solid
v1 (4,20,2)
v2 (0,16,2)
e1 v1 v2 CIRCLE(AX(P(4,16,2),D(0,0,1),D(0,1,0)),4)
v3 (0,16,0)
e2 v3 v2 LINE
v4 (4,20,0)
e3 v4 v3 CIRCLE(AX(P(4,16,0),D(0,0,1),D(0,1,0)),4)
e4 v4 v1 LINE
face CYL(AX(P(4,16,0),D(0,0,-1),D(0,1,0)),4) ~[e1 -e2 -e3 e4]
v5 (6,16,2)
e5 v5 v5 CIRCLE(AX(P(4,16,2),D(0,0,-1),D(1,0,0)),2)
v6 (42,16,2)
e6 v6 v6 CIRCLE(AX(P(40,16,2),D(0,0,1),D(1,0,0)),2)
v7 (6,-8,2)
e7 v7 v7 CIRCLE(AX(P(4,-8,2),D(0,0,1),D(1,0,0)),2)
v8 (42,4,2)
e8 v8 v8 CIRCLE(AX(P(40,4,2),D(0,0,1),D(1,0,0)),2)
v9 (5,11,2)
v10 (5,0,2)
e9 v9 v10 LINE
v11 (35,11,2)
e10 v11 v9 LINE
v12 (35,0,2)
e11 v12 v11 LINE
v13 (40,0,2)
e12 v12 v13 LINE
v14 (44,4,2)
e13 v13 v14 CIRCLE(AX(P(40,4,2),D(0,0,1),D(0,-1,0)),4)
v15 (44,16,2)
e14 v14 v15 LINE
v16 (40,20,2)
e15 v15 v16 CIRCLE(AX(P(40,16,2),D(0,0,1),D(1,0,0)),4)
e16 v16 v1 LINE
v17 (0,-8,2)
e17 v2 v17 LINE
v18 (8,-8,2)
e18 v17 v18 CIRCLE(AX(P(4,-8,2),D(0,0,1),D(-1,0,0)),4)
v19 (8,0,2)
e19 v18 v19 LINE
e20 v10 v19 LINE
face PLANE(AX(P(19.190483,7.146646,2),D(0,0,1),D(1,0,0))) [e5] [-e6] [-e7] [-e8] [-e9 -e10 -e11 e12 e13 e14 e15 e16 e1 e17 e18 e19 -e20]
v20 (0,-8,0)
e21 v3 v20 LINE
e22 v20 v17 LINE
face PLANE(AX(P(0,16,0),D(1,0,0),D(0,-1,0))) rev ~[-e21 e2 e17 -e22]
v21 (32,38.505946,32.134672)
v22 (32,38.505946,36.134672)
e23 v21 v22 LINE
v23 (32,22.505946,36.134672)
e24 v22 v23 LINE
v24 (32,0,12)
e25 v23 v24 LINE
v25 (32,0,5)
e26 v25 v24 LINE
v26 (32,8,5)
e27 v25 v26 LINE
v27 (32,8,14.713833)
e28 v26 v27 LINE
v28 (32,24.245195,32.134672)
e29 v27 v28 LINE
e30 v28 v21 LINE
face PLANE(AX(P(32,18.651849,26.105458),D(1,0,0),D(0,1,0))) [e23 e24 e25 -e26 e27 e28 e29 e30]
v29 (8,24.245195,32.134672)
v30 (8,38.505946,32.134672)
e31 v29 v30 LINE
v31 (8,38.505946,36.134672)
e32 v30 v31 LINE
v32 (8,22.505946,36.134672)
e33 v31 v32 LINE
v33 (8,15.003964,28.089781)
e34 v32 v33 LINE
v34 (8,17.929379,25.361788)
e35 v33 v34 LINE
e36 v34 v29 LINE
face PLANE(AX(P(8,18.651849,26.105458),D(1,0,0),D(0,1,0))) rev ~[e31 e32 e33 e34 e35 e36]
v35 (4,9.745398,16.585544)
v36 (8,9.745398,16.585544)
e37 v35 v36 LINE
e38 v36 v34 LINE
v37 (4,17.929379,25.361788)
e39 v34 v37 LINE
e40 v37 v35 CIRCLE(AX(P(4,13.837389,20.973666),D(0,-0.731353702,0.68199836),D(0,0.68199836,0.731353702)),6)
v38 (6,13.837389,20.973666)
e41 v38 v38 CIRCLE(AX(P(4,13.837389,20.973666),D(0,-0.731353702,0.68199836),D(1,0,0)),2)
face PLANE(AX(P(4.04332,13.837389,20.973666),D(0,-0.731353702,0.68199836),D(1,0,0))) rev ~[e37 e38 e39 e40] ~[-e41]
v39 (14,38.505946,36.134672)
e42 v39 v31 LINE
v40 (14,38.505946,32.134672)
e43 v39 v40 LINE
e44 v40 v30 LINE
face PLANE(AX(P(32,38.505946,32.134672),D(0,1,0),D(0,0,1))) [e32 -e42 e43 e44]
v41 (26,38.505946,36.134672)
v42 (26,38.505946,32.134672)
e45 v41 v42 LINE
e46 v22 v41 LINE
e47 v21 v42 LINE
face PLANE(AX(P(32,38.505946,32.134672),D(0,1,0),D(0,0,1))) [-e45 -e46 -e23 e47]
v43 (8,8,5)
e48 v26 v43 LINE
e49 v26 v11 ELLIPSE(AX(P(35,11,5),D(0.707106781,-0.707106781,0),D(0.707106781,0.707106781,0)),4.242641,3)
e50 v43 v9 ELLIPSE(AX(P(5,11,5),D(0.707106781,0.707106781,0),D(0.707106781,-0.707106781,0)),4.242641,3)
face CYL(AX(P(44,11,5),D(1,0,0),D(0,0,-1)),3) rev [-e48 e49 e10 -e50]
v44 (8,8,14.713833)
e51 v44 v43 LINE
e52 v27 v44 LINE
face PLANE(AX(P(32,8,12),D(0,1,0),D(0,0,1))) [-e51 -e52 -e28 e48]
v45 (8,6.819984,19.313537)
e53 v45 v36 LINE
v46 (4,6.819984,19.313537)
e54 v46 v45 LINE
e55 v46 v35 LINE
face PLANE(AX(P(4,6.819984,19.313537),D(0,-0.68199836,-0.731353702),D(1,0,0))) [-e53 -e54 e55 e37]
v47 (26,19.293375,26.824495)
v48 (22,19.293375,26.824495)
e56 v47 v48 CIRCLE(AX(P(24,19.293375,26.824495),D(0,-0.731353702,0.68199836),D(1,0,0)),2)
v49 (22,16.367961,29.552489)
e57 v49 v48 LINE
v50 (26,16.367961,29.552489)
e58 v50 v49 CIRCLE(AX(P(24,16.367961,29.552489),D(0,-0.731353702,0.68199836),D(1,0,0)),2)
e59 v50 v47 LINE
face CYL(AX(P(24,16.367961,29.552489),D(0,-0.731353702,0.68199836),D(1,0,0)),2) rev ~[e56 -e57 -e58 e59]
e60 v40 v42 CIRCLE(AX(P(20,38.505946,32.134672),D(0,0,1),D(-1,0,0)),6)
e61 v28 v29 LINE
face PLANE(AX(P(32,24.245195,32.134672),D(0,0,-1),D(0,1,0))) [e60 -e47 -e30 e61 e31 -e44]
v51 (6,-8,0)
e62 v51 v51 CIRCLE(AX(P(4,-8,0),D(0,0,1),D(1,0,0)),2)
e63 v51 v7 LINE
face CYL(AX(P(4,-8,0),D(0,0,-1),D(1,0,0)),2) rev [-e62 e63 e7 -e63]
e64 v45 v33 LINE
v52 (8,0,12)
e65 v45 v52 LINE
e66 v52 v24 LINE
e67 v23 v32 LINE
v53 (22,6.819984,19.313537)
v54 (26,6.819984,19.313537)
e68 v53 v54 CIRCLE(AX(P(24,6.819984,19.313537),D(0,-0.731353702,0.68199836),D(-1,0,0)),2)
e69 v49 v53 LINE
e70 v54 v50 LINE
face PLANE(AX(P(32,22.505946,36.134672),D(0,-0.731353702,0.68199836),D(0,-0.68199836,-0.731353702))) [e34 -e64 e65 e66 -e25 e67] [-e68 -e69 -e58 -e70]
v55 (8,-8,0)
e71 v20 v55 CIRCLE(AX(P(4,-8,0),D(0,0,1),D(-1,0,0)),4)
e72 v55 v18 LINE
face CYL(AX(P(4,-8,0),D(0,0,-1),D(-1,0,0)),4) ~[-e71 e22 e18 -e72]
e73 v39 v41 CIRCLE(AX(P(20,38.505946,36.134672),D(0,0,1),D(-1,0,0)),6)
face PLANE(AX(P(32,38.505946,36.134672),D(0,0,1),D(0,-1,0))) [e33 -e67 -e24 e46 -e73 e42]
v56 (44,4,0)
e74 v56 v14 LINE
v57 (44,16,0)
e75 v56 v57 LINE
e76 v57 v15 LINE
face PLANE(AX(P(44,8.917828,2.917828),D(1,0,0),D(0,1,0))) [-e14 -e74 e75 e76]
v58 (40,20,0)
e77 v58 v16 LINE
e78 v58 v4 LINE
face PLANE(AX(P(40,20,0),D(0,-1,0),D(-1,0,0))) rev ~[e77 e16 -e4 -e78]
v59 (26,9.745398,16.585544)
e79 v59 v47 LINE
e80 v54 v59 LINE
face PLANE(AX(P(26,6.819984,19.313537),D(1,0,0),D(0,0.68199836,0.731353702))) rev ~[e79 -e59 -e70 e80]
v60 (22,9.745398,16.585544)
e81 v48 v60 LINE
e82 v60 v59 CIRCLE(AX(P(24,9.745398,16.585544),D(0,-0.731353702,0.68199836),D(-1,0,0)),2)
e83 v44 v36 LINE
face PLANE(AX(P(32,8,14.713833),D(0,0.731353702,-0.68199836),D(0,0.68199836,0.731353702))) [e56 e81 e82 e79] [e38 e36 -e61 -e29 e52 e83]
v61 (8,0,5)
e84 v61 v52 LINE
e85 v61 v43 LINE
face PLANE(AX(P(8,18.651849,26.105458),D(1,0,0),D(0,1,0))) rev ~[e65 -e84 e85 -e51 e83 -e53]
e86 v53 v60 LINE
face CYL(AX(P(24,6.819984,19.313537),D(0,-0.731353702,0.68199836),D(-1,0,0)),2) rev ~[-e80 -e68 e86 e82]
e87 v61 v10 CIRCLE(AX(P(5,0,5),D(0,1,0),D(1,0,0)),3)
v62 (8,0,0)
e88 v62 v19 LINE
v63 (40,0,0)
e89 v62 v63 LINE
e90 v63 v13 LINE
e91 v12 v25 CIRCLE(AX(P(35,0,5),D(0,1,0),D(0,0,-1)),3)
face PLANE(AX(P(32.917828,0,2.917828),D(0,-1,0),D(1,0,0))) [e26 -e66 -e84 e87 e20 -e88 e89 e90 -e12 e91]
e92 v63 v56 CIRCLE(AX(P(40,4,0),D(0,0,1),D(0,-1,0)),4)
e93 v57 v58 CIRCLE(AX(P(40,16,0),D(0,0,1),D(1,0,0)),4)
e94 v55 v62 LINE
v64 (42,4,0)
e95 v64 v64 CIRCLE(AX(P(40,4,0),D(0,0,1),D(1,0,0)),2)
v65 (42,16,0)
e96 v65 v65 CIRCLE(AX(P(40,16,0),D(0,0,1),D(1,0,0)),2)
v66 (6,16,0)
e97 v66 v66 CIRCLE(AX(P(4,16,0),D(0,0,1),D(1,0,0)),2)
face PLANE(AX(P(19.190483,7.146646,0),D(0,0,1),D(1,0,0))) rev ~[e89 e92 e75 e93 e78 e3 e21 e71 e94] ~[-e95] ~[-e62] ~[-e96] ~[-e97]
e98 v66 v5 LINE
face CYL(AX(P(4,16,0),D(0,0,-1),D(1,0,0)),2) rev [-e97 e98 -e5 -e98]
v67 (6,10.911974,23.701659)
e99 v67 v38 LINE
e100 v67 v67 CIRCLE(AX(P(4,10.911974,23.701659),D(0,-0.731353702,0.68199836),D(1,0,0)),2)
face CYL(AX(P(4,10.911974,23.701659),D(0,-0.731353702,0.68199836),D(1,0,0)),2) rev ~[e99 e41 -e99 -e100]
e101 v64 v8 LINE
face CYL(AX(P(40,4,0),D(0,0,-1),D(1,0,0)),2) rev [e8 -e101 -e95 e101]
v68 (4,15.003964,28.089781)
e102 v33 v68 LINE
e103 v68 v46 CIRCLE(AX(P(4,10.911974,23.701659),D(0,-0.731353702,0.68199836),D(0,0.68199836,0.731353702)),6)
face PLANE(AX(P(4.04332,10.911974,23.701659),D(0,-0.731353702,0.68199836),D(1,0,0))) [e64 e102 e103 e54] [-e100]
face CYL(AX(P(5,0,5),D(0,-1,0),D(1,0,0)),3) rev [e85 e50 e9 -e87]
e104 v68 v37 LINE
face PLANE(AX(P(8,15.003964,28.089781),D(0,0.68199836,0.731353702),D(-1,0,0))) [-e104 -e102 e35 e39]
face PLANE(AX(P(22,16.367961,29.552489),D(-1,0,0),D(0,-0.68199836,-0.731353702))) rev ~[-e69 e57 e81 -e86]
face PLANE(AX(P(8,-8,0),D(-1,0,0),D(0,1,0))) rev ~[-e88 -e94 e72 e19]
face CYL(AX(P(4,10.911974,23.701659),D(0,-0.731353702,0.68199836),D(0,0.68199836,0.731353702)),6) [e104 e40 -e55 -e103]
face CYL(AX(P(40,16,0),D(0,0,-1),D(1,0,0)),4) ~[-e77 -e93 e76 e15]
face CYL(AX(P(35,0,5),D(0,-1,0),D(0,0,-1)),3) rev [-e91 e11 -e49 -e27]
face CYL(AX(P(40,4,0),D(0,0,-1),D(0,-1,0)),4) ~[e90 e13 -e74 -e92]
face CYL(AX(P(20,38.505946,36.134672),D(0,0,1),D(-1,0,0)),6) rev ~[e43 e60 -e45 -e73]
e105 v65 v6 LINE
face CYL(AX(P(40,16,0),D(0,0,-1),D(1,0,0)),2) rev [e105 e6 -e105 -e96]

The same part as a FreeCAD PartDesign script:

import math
import FreeCAD as App
import Part
import Sketcher
from FreeCAD import Vector
Q = App.Units.Quantity

doc = App.newDocument("Part")
body = doc.addObject("PartDesign::Body", "Body")

# Sketch on XY plane
sketch1 = body.newObject("Sketcher::SketchObject", "Sketch")
sketch1.AttachmentSupport = (doc.getObject("XY_Plane"), [""])
sketch1.MapMode = "FlatFace"
sketch1.addGeometry([
    Part.LineSegment(Vector(40, 20, 0), Vector(4, 20, 0)),  # 0
    Part.ArcOfCircle(Part.Circle(Vector(4, 16, 0), Vector(0, 0, 1), 4), math.radians(90), math.radians(180)),  # 1
    Part.LineSegment(Vector(0, 16, 0), Vector(0, -8, 0)),  # 2
    Part.ArcOfCircle(Part.Circle(Vector(4, -8, 0), Vector(0, 0, 1), 4), math.radians(180), math.radians(360)),  # 3
    Part.LineSegment(Vector(8, -8, 0), Vector(8, 0, 0)),  # 4
    Part.LineSegment(Vector(8, 0, 0), Vector(40, 0, 0)),  # 5
    Part.ArcOfCircle(Part.Circle(Vector(40, 4, 0), Vector(0, 0, 1), 4), math.radians(-90), math.radians(0)),  # 6
    Part.LineSegment(Vector(44, 4, 0), Vector(44, 16, 0)),  # 7
    Part.ArcOfCircle(Part.Circle(Vector(40, 16, 0), Vector(0, 0, 1), 4), math.radians(0), math.radians(90)),  # 8
    Part.Circle(Vector(4, -8, 0), Vector(0, 0, 1), 2),  # 9
    Part.Circle(Vector(4, 16, 0), Vector(0, 0, 1), 2),  # 10
    Part.Circle(Vector(40, 4, 0), Vector(0, 0, 1), 2),  # 11
    Part.Circle(Vector(40, 16, 0), Vector(0, 0, 1), 2),  # 12
], False)
sketch1.addConstraint([
    Sketcher.Constraint("Tangent", 0, 2, 1, 1),
    Sketcher.Constraint("Tangent", 1, 2, 2, 1),
    Sketcher.Constraint("Tangent", 2, 2, 3, 1),
    Sketcher.Constraint("Tangent", 3, 2, 4, 1),
    Sketcher.Constraint("Coincident", 4, 2, 5, 1),
    Sketcher.Constraint("Tangent", 5, 2, 6, 1),
    Sketcher.Constraint("Tangent", 6, 2, 7, 1),
    Sketcher.Constraint("Tangent", 7, 2, 8, 1),
    Sketcher.Constraint("Tangent", 8, 2, 0, 1),
    Sketcher.Constraint("Horizontal", 0),
    Sketcher.Constraint("Vertical", 2),
    Sketcher.Constraint("Vertical", 4),
    Sketcher.Constraint("Horizontal", 5),
    Sketcher.Constraint("Vertical", 7),
    Sketcher.Constraint("Coincident", 9, 3, 3, 3),
    Sketcher.Constraint("Coincident", 10, 3, 1, 3),
    Sketcher.Constraint("Coincident", 11, 3, 6, 3),
    Sketcher.Constraint("Coincident", 12, 3, 8, 3),
    Sketcher.Constraint("Equal", 1, 3),
    Sketcher.Constraint("Equal", 3, 6),
    Sketcher.Constraint("Equal", 6, 8),
    Sketcher.Constraint("Equal", 9, 10),
    Sketcher.Constraint("Equal", 10, 11),
    Sketcher.Constraint("Equal", 11, 12),
    Sketcher.Constraint("PointOnObject", 1, 2, -2),
    Sketcher.Constraint("PointOnObject", 4, 2, -1),
    Sketcher.Constraint("Diameter", 9, 4.0),
    Sketcher.Constraint("Radius", 1, 4.0),
    Sketcher.Constraint("DistanceX", 0, 2, 0, 1, 36.0),
    Sketcher.Constraint("DistanceY", 2, 2, 2, 1, 24.0),
    Sketcher.Constraint("DistanceY", 4, 1, 4, 2, 8.0),
])
pad1 = body.newObject("PartDesign::Pad", "Pad")
pad1.Profile = sketch1
pad1.Length = 2

# Sketch on XY plane
sketch2 = body.newObject("Sketcher::SketchObject", "Sketch001")
sketch2.AttachmentSupport = (doc.getObject("XY_Plane"), [""])
sketch2.MapMode = "FlatFace"
sketch2.AttachmentOffset = App.Placement(Vector(0, 0, 2), App.Rotation())
sketch2.addGeometry([
    Part.LineSegment(Vector(8, 8, 0), Vector(8, 0, 0)),
    Part.LineSegment(Vector(8, 0, 0), Vector(32, 0, 0)),
    Part.LineSegment(Vector(32, 0, 0), Vector(32, 8, 0)),
    Part.LineSegment(Vector(32, 8, 0), Vector(8, 8, 0)),
], False)
sketch2.addConstraint([
    Sketcher.Constraint("Coincident", 0, 2, 1, 1),
    Sketcher.Constraint("Coincident", 1, 2, 2, 1),
    Sketcher.Constraint("Coincident", 2, 2, 3, 1),
    Sketcher.Constraint("Coincident", 3, 2, 0, 1),
    Sketcher.Constraint("Vertical", 0),
    Sketcher.Constraint("Horizontal", 1),
    Sketcher.Constraint("Vertical", 2),
    Sketcher.Constraint("Horizontal", 3),
    Sketcher.Constraint("PointOnObject", 0, 2, -1),
    Sketcher.Constraint("DistanceX", 1, 1, 1, 2, 24.0),
    Sketcher.Constraint("DistanceY", 0, 2, 0, 1, 8.0),
    Sketcher.Constraint("DistanceX", -1, 1, 0, 2, 8.0),
])
pad2 = body.newObject("PartDesign::Pad", "Pad001")
pad2.Profile = sketch2
pad2.Length = 10

# Sketch on XZ plane
sketch3 = body.newObject("Sketcher::SketchObject", "Sketch002")
sketch3.AttachmentSupport = (doc.getObject("XZ_Plane"), [""])
sketch3.MapMode = "FlatFace"
sketch3.addGeometry([
    Part.LineSegment(Vector(32, 2, 0), Vector(35, 2, 0)),  # 0
    Part.ArcOfCircle(Part.Circle(Vector(35, 5, 0), Vector(0, 0, 1), 3), math.radians(180), math.radians(270)),  # 1
    Part.LineSegment(Vector(32, 5, 0), Vector(32, 2, 0)),  # 2
    Part.LineSegment(Vector(5, 2, 0), Vector(8, 2, 0)),  # 3
    Part.LineSegment(Vector(8, 2, 0), Vector(8, 5, 0)),  # 4
    Part.ArcOfCircle(Part.Circle(Vector(5, 5, 0), Vector(0, 0, 1), 3), math.radians(-90), math.radians(0)),  # 5
], False)
sketch3.addConstraint([
    Sketcher.Constraint("Tangent", 0, 2, 1, 2),
    Sketcher.Constraint("Tangent", 1, 1, 2, 1),
    Sketcher.Constraint("Coincident", 2, 2, 0, 1),
    Sketcher.Constraint("Coincident", 3, 2, 4, 1),
    Sketcher.Constraint("Tangent", 4, 2, 5, 2),
    Sketcher.Constraint("Tangent", 5, 1, 3, 1),
    Sketcher.Constraint("Horizontal", 0),
    Sketcher.Constraint("Vertical", 2),
    Sketcher.Constraint("Horizontal", 3),
    Sketcher.Constraint("Vertical", 4),
    Sketcher.Constraint("Equal", 1, 5),
    Sketcher.Constraint("Horizontal", 1, 3, 5, 3),
    Sketcher.Constraint("Radius", 1, 3.0),
    Sketcher.Constraint("DistanceX", -1, 1, 1, 3, 35.0),
    Sketcher.Constraint("DistanceY", -1, 1, 1, 3, 5.0),
    Sketcher.Constraint("DistanceX", -1, 1, 5, 3, 5.0),
])
pad3 = body.newObject("PartDesign::Pad", "Pad002")
pad3.Profile = sketch3
pad3.Length = 8
pad3.Reversed = True

# Sketch on YZ plane
sketch4 = body.newObject("Sketcher::SketchObject", "Sketch003")
sketch4.AttachmentSupport = (doc.getObject("YZ_Plane"), [""])
sketch4.MapMode = "FlatFace"
sketch4.AttachmentOffset = App.Placement(Vector(0, 0, 44), App.Rotation())
sketch4.addGeometry([
    Part.ArcOfCircle(Part.Circle(Vector(11, 5, 0), Vector(0, 0, 1), 3), math.radians(180), math.radians(270)),
    Part.LineSegment(Vector(8, 5, 0), Vector(8, 2, 0)),
    Part.LineSegment(Vector(8, 2, 0), Vector(11, 2, 0)),
], False)
sketch4.addConstraint([
    Sketcher.Constraint("Tangent", 0, 1, 1, 1),
    Sketcher.Constraint("Coincident", 1, 2, 2, 1),
    Sketcher.Constraint("Tangent", 2, 2, 0, 2),
    Sketcher.Constraint("Vertical", 1),
    Sketcher.Constraint("Horizontal", 2),
    Sketcher.Constraint("Radius", 0, 3.0),
    Sketcher.Constraint("DistanceX", -1, 1, 0, 3, 11.0),
    Sketcher.Constraint("DistanceY", -1, 1, 0, 3, 5.0),
])
pad4 = body.newObject("PartDesign::Pad", "Pad003")
pad4.Profile = sketch4
pad4.Length = 40
pad4.Reversed = True

# Sketch on XZ plane
sketch5 = body.newObject("Sketcher::SketchObject", "Sketch004")
sketch5.AttachmentSupport = (doc.getObject("XZ_Plane"), [""])
sketch5.MapMode = "FlatFace"
sketch5.addGeometry([
    Part.ArcOfCircle(Part.Circle(Vector(5, 5, 0), Vector(0, 0, 1), 3), math.radians(-90), math.radians(0)),  # 0
    Part.LineSegment(Vector(8, 5, 0), Vector(3.854018, 5, 0)),  # 1
    Part.LineSegment(Vector(3.854018, 5, 0), Vector(3.854018, 2, 0)),  # 2
    Part.LineSegment(Vector(3.854018, 2, 0), Vector(5, 2, 0)),  # 3
    Part.LineSegment(Vector(44, 5, 0), Vector(32, 5, 0)),  # 4
    Part.ArcOfCircle(Part.Circle(Vector(35, 5, 0), Vector(0, 0, 1), 3), math.radians(180), math.radians(270)),  # 5
    Part.LineSegment(Vector(35, 2, 0), Vector(44, 2, 0)),  # 6
    Part.LineSegment(Vector(44, 2, 0), Vector(44, 5, 0)),  # 7
], False)
sketch5.addConstraint([
    Sketcher.Constraint("Coincident", 0, 2, 1, 1),
    Sketcher.Constraint("Coincident", 1, 2, 2, 1),
    Sketcher.Constraint("Coincident", 2, 2, 3, 1),
    Sketcher.Constraint("Tangent", 3, 2, 0, 1),
    Sketcher.Constraint("Coincident", 4, 2, 5, 1),
    Sketcher.Constraint("Tangent", 5, 2, 6, 1),
    Sketcher.Constraint("Coincident", 6, 2, 7, 1),
    Sketcher.Constraint("Coincident", 7, 2, 4, 1),
    Sketcher.Constraint("Horizontal", 1),
    Sketcher.Constraint("Vertical", 2),
    Sketcher.Constraint("Horizontal", 3),
    Sketcher.Constraint("Horizontal", 4),
    Sketcher.Constraint("Horizontal", 6),
    Sketcher.Constraint("Vertical", 7),
    Sketcher.Constraint("Equal", 0, 5),
    Sketcher.Constraint("Horizontal", 0, 3, 5, 3),
    Sketcher.Constraint("Horizontal", 5, 3, 0, 2),
    Sketcher.Constraint("Horizontal", 1, 2, 4, 2),
    Sketcher.Constraint("Radius", 0, 3.0),
    Sketcher.Constraint("DistanceX", 4, 2, 4, 1, 12.0),
    Sketcher.Constraint("DistanceX", -1, 1, 0, 3, 5.0),
    Sketcher.Constraint("DistanceY", -1, 1, 0, 3, 5.0),
    Sketcher.Constraint("DistanceX", -1, 1, 5, 3, 35.0),
    Sketcher.Constraint("DistanceX", 1, 2, 1, 1, 4.145982),
])
pocket1 = body.newObject("PartDesign::Pocket", "Pocket")
pocket1.Profile = sketch5
pocket1.Length = 25

# Sketch on YZ plane
sketch6 = body.newObject("Sketcher::SketchObject", "Sketch005")
sketch6.AttachmentSupport = (doc.getObject("YZ_Plane"), [""])
sketch6.MapMode = "FlatFace"
sketch6.AttachmentOffset = App.Placement(Vector(0, 0, 32), App.Rotation())
sketch6.addGeometry([
    Part.LineSegment(Vector(22.505946, 36.134672, 0), Vector(0, 12, 0)),  # 0
    Part.LineSegment(Vector(0, 12, 0), Vector(8, 12, 0)),  # 1
    Part.LineSegment(Vector(8, 12, 0), Vector(8, 14.713833, 0)),  # 2
    Part.LineSegment(Vector(8, 14.713833, 0), Vector(24.245195, 32.134672, 0)),  # 3
    Part.LineSegment(Vector(24.245195, 32.134672, 0), Vector(38.505946, 32.134672, 0)),  # 4
    Part.LineSegment(Vector(38.505946, 32.134672, 0), Vector(38.505946, 36.134672, 0)),  # 5
    Part.LineSegment(Vector(38.505946, 36.134672, 0), Vector(22.505946, 36.134672, 0)),  # 6
], False)
sketch6.addConstraint([
    Sketcher.Constraint("Coincident", 0, 2, 1, 1),
    Sketcher.Constraint("Coincident", 1, 2, 2, 1),
    Sketcher.Constraint("Coincident", 2, 2, 3, 1),
    Sketcher.Constraint("Coincident", 3, 2, 4, 1),
    Sketcher.Constraint("Coincident", 4, 2, 5, 1),
    Sketcher.Constraint("Coincident", 5, 2, 6, 1),
    Sketcher.Constraint("Coincident", 6, 2, 0, 1),
    Sketcher.Constraint("Horizontal", 1),
    Sketcher.Constraint("Vertical", 2),
    Sketcher.Constraint("Horizontal", 4),
    Sketcher.Constraint("Vertical", 5),
    Sketcher.Constraint("Horizontal", 6),
    Sketcher.Constraint("PointOnObject", 0, 2, -2),
    Sketcher.Constraint("Parallel", 0, 3),
    Sketcher.Constraint("DistanceX", 1, 1, 1, 2, 8.0),
    Sketcher.Constraint("DistanceX", 6, 2, 6, 1, 16.0),
    Sketcher.Constraint("DistanceY", 5, 1, 5, 2, 4.0),
    Sketcher.Constraint("Angle", 0, Q("-133 deg")),
    Sketcher.Constraint("Distance", 0, 33.0),
    Sketcher.Constraint("DistanceY", -1, 1, 0, 2, 12.0),
    Sketcher.Constraint("DistanceX", 4, 1, 4, 2, 14.260751),
])
pad5 = body.newObject("PartDesign::Pad", "Pad004")
pad5.Profile = sketch6
pad5.Length = 24
pad5.Reversed = True

# Sketch on an angled plane
sketch7 = body.newObject("Sketcher::SketchObject", "Sketch006")
sketch7.Placement = App.Placement(Vector(0, -5.985384, 5.581461), App.Rotation(Vector(1, 0, 0), Vector(0, 0.68199836, 0.731353702), Vector(0, -0.731353702, 0.68199836), "ZXY"))
sketch7.addGeometry([
    Part.LineSegment(Vector(26, 18.776244, 0), Vector(26, 32.776244, 0)),
    Part.ArcOfCircle(Part.Circle(Vector(24, 32.776244, 0), Vector(0, 0, 1), 2), math.radians(0), math.radians(180)),
    Part.LineSegment(Vector(22, 32.776244, 0), Vector(22, 18.776244, 0)),
    Part.ArcOfCircle(Part.Circle(Vector(24, 18.776244, 0), Vector(0, 0, 1), 2), math.radians(180), math.radians(360)),
], False)
sketch7.addConstraint([
    Sketcher.Constraint("Tangent", 0, 2, 1, 1),
    Sketcher.Constraint("Tangent", 1, 2, 2, 1),
    Sketcher.Constraint("Tangent", 2, 2, 3, 1),
    Sketcher.Constraint("Tangent", 3, 2, 0, 1),
    Sketcher.Constraint("Vertical", 0),
    Sketcher.Constraint("Vertical", 2),
    Sketcher.Constraint("Radius", 1, 2.0),
    Sketcher.Constraint("DistanceY", 0, 1, 0, 2, 14.0),
    Sketcher.Constraint("DistanceX", -1, 1, 1, 3, 24.0),
    Sketcher.Constraint("DistanceY", -1, 1, 1, 3, 32.776244),
])
pocket2 = body.newObject("PartDesign::Pocket", "Pocket001")
pocket2.Profile = sketch7
pocket2.Length = 4

# Sketch on an angled plane
sketch8 = body.newObject("Sketcher::SketchObject", "Sketch007")
sketch8.Placement = App.Placement(Vector(0, -5.985384, 5.581461), App.Rotation(Vector(1, 0, 0), Vector(0, 0.68199836, 0.731353702), Vector(0, -0.731353702, 0.68199836), "ZXY"))
sketch8.addGeometry([
    Part.LineSegment(Vector(8, 30.776244, 0), Vector(4, 30.776244, 0)),  # 0
    Part.ArcOfCircle(Part.Circle(Vector(4, 24.776244, 0), Vector(0, 0, 1), 6), math.radians(90), math.radians(270)),  # 1
    Part.LineSegment(Vector(4, 18.776244, 0), Vector(8, 18.776244, 0)),  # 2
    Part.LineSegment(Vector(8, 18.776244, 0), Vector(8, 30.776244, 0)),  # 3
    Part.Circle(Vector(4, 24.776244, 0), Vector(0, 0, 1), 2),  # 4
], False)
sketch8.addConstraint([
    Sketcher.Constraint("Tangent", 0, 2, 1, 1),
    Sketcher.Constraint("Tangent", 1, 2, 2, 1),
    Sketcher.Constraint("Coincident", 2, 2, 3, 1),
    Sketcher.Constraint("Coincident", 3, 2, 0, 1),
    Sketcher.Constraint("Horizontal", 0),
    Sketcher.Constraint("Horizontal", 2),
    Sketcher.Constraint("Vertical", 3),
    Sketcher.Constraint("Coincident", 4, 3, 1, 3),
    Sketcher.Constraint("Diameter", 4, 4.0),
    Sketcher.Constraint("Radius", 1, 6.0),
    Sketcher.Constraint("DistanceX", 0, 2, 0, 1, 4.0),
    Sketcher.Constraint("DistanceX", -1, 1, 1, 3, 4.0),
    Sketcher.Constraint("DistanceY", -1, 1, 1, 3, 24.776244),
])
pad6 = body.newObject("PartDesign::Pad", "Pad005")
pad6.Profile = sketch8
pad6.Length = 4
pad6.Reversed = True

# Sketch on XY plane
sketch9 = body.newObject("Sketcher::SketchObject", "Sketch008")
sketch9.AttachmentSupport = (doc.getObject("XY_Plane"), [""])
sketch9.MapMode = "FlatFace"
sketch9.AttachmentOffset = App.Placement(Vector(0, 0, 36.134672), App.Rotation())
sketch9.addGeometry([
    Part.ArcOfCircle(Part.Circle(Vector(20, 38.505946, 0), Vector(0, 0, 1), 6), math.radians(180), math.radians(360)),
    Part.LineSegment(Vector(26, 38.505946, 0), Vector(14, 38.505946, 0)),
], False)
sketch9.addConstraint([
    Sketcher.Constraint("Coincident", 0, 1, 1, 2),
    Sketcher.Constraint("Coincident", 1, 1, 0, 2),
    Sketcher.Constraint("Horizontal", 1),
    Sketcher.Constraint("Radius", 0, 6.0),
    Sketcher.Constraint("DistanceX", -1, 1, 0, 3, 20.0),
    Sketcher.Constraint("DistanceY", -1, 1, 0, 3, 38.505946),
    Sketcher.Constraint("DistanceY", -1, 1, 0, 1, 38.505946),
])
pocket3 = body.newObject("PartDesign::Pocket", "Pocket002")
pocket3.Profile = sketch9
pocket3.Length = 4

doc.recompute()
